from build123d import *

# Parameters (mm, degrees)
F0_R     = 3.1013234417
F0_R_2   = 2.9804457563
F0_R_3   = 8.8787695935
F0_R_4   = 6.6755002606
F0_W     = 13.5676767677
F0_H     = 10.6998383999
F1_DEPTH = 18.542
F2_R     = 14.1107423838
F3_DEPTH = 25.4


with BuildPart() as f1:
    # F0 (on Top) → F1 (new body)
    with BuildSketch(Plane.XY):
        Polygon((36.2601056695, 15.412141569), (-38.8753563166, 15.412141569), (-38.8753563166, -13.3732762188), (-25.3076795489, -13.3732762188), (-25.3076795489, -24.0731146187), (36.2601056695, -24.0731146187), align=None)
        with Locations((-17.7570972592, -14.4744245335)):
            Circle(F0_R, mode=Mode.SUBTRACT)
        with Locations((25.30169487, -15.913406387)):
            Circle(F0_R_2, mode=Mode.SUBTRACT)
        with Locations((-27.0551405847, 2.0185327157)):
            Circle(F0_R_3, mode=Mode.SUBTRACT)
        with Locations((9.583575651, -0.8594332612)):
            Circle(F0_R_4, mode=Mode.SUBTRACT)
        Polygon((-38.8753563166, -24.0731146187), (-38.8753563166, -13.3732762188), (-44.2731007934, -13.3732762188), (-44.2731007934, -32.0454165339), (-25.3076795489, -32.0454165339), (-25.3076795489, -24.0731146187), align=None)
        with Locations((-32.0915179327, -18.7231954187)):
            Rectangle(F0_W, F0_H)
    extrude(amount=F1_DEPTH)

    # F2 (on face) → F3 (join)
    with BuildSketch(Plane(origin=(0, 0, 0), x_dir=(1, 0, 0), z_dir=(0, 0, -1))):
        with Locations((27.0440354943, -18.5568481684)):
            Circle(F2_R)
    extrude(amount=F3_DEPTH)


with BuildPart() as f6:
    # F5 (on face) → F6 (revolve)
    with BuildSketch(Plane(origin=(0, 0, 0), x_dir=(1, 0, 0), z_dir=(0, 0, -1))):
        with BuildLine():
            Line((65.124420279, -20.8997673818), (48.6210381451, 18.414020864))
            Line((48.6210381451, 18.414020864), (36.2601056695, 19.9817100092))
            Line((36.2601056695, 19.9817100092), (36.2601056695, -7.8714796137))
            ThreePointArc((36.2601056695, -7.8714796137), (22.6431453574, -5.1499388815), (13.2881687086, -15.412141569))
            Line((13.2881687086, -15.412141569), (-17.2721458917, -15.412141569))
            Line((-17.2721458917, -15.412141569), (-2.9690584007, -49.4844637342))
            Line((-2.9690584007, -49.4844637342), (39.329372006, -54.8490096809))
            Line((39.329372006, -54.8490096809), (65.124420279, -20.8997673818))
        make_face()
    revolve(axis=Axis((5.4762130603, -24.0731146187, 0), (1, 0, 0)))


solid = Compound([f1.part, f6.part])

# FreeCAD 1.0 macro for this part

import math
import FreeCAD as App
import Part
import Sketcher
from FreeCAD import Vector
Q = App.Units.Quantity

doc = App.newDocument("Part")
body = doc.addObject("PartDesign::Body", "Body")

sketch1 = body.newObject("Sketcher::SketchObject", "Sketch")
sketch1.AttachmentSupport = (doc.getObject("XY_Plane"), [""])
sketch1.MapMode = "FlatFace"
sketch1.addGeometry(Part.LineSegment(Vector(36.3, 15.4, 0), Vector(-38.9, 15.4, 0)), False)
sketch1.addGeometry(Part.LineSegment(Vector(-38.9, 15.4, 0), Vector(-38.9, -13.4, 0)), False)
sketch1.addGeometry(Part.LineSegment(Vector(-38.9, -13.4, 0), Vector(-44.3, -13.4, 0)), False)
sketch1.addGeometry(Part.LineSegment(Vector(-44.3, -13.4, 0), Vector(-44.3, -32, 0)), False)
sketch1.addGeometry(Part.LineSegment(Vector(-44.3, -32, 0), Vector(-25.3, -32, 0)), False)
sketch1.addGeometry(Part.LineSegment(Vector(-25.3, -32, 0), Vector(-25.3, -24.1, 0)), False)
sketch1.addGeometry(Part.LineSegment(Vector(-25.3, -24.1, 0), Vector(36.3, -24.1, 0)), False)
sketch1.addGeometry(Part.LineSegment(Vector(36.3, -24.1, 0), Vector(36.3, 15.4, 0)), False)
sketch1.addGeometry(Part.Circle(Vector(-17.8, -14.5, 0), Vector(0, 0, 1), 3.1), False)
sketch1.addGeometry(Part.Circle(Vector(25.3, -15.9, 0), Vector(0, 0, 1), 3), False)
sketch1.addGeometry(Part.Circle(Vector(-27.1, 2, 0), Vector(0, 0, 1), 8.9), False)
sketch1.addGeometry(Part.Circle(Vector(9.6, -0.9, 0), Vector(0, 0, 1), 6.7), False)
sketch1.addConstraint(Sketcher.Constraint("Coincident", 0, 2, 1, 1))
sketch1.addConstraint(Sketcher.Constraint("Coincident", 1, 2, 2, 1))
sketch1.addConstraint(Sketcher.Constraint("Coincident", 2, 2, 3, 1))
sketch1.addConstraint(Sketcher.Constraint("Coincident", 3, 2, 4, 1))
sketch1.addConstraint(Sketcher.Constraint("Coincident", 4, 2, 5, 1))
sketch1.addConstraint(Sketcher.Constraint("Coincident", 5, 2, 6, 1))
sketch1.addConstraint(Sketcher.Constraint("Coincident", 6, 2, 7, 1))
sketch1.addConstraint(Sketcher.Constraint("Coincident", 7, 2, 0, 1))
sketch1.addConstraint(Sketcher.Constraint("Horizontal", 0))
sketch1.addConstraint(Sketcher.Constraint("Vertical", 1))
sketch1.addConstraint(Sketcher.Constraint("Horizontal", 2))
sketch1.addConstraint(Sketcher.Constraint("Vertical", 3))
sketch1.addConstraint(Sketcher.Constraint("Horizontal", 4))
sketch1.addConstraint(Sketcher.Constraint("Vertical", 5))
sketch1.addConstraint(Sketcher.Constraint("Horizontal", 6))
sketch1.addConstraint(Sketcher.Constraint("Vertical", 7))
sketch1.addConstraint(Sketcher.Constraint("Diameter", 11, Q("13.351001 mm")))
sketch1.addConstraint(Sketcher.Constraint("Diameter", 9, Q("5.960892 mm")))
sketch1.addConstraint(Sketcher.Constraint("Diameter", 10, Q("17.757539 mm")))
sketch1.addConstraint(Sketcher.Constraint("Diameter", 8, Q("6.202647 mm")))
sketch1.addConstraint(Sketcher.Constraint("DistanceY", 5, 1, 5, 2, Q("7.972302 mm")))
sketch1.addConstraint(Sketcher.Constraint("DistanceX", 0, 2, 0, 1, Q("75.135462 mm")))
sketch1.addConstraint(Sketcher.Constraint("DistanceX", 4, 1, 4, 2, Q("18.965421 mm")))
sketch1.addConstraint(Sketcher.Constraint("DistanceY", 3, 2, 3, 1, Q("18.67214 mm")))
sketch1.addConstraint(Sketcher.Constraint("DistanceX", 2, 2, -1, 1, Q("44.273101 mm")))
sketch1.addConstraint(Sketcher.Constraint("DistanceX", 2, 2, 2, 1, Q("5.397744 mm")))
sketch1.addConstraint(Sketcher.Constraint("DistanceY", 1, 2, 1, 1, Q("28.785418 mm")))
sketch1.addConstraint(Sketcher.Constraint("DistanceX", 10, 3, -1, 1, Q("27.055141 mm")))
sketch1.addConstraint(Sketcher.Constraint("DistanceY", -1, 1, 0, 2, Q("15.412142 mm")))
sketch1.addConstraint(Sketcher.Constraint("DistanceY", 9, 3, 8, 3, Q("1.438982 mm")))
sketch1.addConstraint(Sketcher.Constraint("DistanceY", 9, 3, 10, 3, Q("17.931939 mm")))
sketch1.addConstraint(Sketcher.Constraint("DistanceX", 11, 3, 9, 3, Q("15.718119 mm")))
sketch1.addConstraint(Sketcher.Constraint("DistanceY", 8, 3, 11, 3, Q("13.614991 mm")))
sketch1.addConstraint(Sketcher.Constraint("DistanceY", 10, 3, 0, 2, Q("13.393609 mm")))
sketch1.addConstraint(Sketcher.Constraint("DistanceX", 0, 2, 8, 3, Q("21.118259 mm")))
sketch1.addConstraint(Sketcher.Constraint("DistanceX", 0, 2, 11, 3, Q("48.458932 mm")))
pad1 = body.newObject("PartDesign::Pad", "Pad")
pad1.Profile = sketch1
pad1.Length = Q("0.73 in")

sketch2 = body.newObject("Sketcher::SketchObject", "Sketch001")
sketch2.AttachmentSupport = (doc.getObject("XY_Plane"), [""])
sketch2.MapMode = "FlatFace"
sketch2.addGeometry(Part.Circle(Vector(27, 19, 0), Vector(0, 0, 1), 14), False)
sketch2.addConstraint(Sketcher.Constraint("Diameter", 0, Q("28.221485 mm")))
sketch2.addConstraint(Sketcher.Constraint("DistanceY", -1, 1, 0, 3, Q("18.556848 mm")))
sketch2.addConstraint(Sketcher.Constraint("DistanceX", -1, 1, 0, 3, Q("27.044035 mm")))
pad2 = body.newObject("PartDesign::Pad", "Pad001")
pad2.Profile = sketch2
pad2.Length = Q("1 in")
pad2.Reversed = True
body2 = doc.addObject("PartDesign::Body", "Body001")

sketch3 = body2.newObject("Sketcher::SketchObject", "Sketch002")
sketch3.AttachmentSupport = (doc.getObject("XY_Plane001"), [""])
sketch3.MapMode = "FlatFace"
sketch3.addGeometry(Part.LineSegment(Vector(65, 21, 0), Vector(49, -18, 0)), False)
sketch3.addGeometry(Part.LineSegment(Vector(49, -18, 0), Vector(36, -20, 0)), False)
sketch3.addGeometry(Part.LineSegment(Vector(36, -20, 0), Vector(36, 8, 0)), False)
sketch3.addGeometry(Part.ArcOfCircle(Part.Circle(Vector(27, 19, 0), Vector(0, 0, 1), 14), math.radians(-167), math.radians(-49)), False)
sketch3.addGeometry(Part.LineSegment(Vector(13, 15, 0), Vector(-17, 15, 0)), False)
sketch3.addGeometry(Part.LineSegment(Vector(-17, 15, 0), Vector(-3, 49, 0)), False)
sketch3.addGeometry(Part.LineSegment(Vector(-3, 49, 0), Vector(39, 55, 0)), False)
sketch3.addGeometry(Part.LineSegment(Vector(39, 55, 0), Vector(65, 21, 0)), False)
sketch3.addGeometry(Part.LineSegment(Vector(-17, -24, 0), Vector(65, -24, 0)), True)
sketch3.addConstraint(Sketcher.Constraint("Coincident", 0, 2, 1, 1))
sketch3.addConstraint(Sketcher.Constraint("Coincident", 1, 2, 2, 1))
sketch3.addConstraint(Sketcher.Constraint("Coincident", 2, 2, 3, 2))
sketch3.addConstraint(Sketcher.Constraint("Coincident", 3, 1, 4, 1))
sketch3.addConstraint(Sketcher.Constraint("Coincident", 4, 2, 5, 1))
sketch3.addConstraint(Sketcher.Constraint("Coincident", 5, 2, 6, 1))
sketch3.addConstraint(Sketcher.Constraint("Coincident", 6, 2, 7, 1))
sketch3.addConstraint(Sketcher.Constraint("Coincident", 7, 2, 0, 1))
sketch3.addConstraint(Sketcher.Constraint("Vertical", 2))
sketch3.addConstraint(Sketcher.Constraint("Horizontal", 4))
sketch3.addConstraint(Sketcher.Constraint("Horizontal", 8))
sketch3.addConstraint(Sketcher.Constraint("Parallel", 0, 5))
sketch3.addConstraint(Sketcher.Constraint("Parallel", 1, 6))
sketch3.addConstraint(Sketcher.Constraint("Vertical", 4, 2, 8, 1))
sketch3.addConstraint(Sketcher.Constraint("Vertical", 7, 2, 8, 2))
sketch3.addConstraint(Sketcher.Constraint("Equal", 0, 6))
sketch3.addConstraint(Sketcher.Constraint("Equal", 6, 7))
sketch3.addConstraint(Sketcher.Constraint("Radius", 3, Q("14.110742 mm")))
sketch3.addConstraint(Sketcher.Constraint("DistanceY", 2, 1, 2, 2, Q("27.85319 mm")))
sketch3.addConstraint(Sketcher.Constraint("DistanceY", 0, 2, 2, 2, Q("26.2855 mm")))
sketch3.addConstraint(Sketcher.Constraint("DistanceX", 4, 2, 4, 1, Q("30.560315 mm")))
sketch3.addConstraint(Sketcher.Constraint("DistanceX", 8, 1, 8, 2, Q("82.396566 mm")))
sketch3.addConstraint(Sketcher.Constraint("DistanceY", -1, 1, 3, 3, Q("18.556848 mm")))
sketch3.addConstraint(Sketcher.Constraint("DistanceX", -1, 1, 0, 2, Q("48.621038 mm")))
sketch3.addConstraint(Sketcher.Constraint("DistanceY", 0, 2, -1, 1, Q("18.414021 mm")))
sketch3.addConstraint(Sketcher.Constraint("DistanceX", -1, 1, 3, 1, Q("13.288169 mm")))
sketch3.addConstraint(Sketcher.Constraint("DistanceY", -1, 1, 3, 1, Q("15.412142 mm")))
sketch3.addConstraint(Sketcher.Constraint("DistanceX", 5, 2, -1, 1, Q("2.969058 mm")))
sketch3.addConstraint(Sketcher.Constraint("DistanceY", 8, 1, -1, 1, Q("24.073115 mm")))
revolution = body2.newObject("PartDesign::Revolution", "Revolution")
revolution.Profile = sketch3
revolution.ReferenceAxis = (sketch3, ["Axis0"])
revolution.Angle = 360

doc.recompute()
